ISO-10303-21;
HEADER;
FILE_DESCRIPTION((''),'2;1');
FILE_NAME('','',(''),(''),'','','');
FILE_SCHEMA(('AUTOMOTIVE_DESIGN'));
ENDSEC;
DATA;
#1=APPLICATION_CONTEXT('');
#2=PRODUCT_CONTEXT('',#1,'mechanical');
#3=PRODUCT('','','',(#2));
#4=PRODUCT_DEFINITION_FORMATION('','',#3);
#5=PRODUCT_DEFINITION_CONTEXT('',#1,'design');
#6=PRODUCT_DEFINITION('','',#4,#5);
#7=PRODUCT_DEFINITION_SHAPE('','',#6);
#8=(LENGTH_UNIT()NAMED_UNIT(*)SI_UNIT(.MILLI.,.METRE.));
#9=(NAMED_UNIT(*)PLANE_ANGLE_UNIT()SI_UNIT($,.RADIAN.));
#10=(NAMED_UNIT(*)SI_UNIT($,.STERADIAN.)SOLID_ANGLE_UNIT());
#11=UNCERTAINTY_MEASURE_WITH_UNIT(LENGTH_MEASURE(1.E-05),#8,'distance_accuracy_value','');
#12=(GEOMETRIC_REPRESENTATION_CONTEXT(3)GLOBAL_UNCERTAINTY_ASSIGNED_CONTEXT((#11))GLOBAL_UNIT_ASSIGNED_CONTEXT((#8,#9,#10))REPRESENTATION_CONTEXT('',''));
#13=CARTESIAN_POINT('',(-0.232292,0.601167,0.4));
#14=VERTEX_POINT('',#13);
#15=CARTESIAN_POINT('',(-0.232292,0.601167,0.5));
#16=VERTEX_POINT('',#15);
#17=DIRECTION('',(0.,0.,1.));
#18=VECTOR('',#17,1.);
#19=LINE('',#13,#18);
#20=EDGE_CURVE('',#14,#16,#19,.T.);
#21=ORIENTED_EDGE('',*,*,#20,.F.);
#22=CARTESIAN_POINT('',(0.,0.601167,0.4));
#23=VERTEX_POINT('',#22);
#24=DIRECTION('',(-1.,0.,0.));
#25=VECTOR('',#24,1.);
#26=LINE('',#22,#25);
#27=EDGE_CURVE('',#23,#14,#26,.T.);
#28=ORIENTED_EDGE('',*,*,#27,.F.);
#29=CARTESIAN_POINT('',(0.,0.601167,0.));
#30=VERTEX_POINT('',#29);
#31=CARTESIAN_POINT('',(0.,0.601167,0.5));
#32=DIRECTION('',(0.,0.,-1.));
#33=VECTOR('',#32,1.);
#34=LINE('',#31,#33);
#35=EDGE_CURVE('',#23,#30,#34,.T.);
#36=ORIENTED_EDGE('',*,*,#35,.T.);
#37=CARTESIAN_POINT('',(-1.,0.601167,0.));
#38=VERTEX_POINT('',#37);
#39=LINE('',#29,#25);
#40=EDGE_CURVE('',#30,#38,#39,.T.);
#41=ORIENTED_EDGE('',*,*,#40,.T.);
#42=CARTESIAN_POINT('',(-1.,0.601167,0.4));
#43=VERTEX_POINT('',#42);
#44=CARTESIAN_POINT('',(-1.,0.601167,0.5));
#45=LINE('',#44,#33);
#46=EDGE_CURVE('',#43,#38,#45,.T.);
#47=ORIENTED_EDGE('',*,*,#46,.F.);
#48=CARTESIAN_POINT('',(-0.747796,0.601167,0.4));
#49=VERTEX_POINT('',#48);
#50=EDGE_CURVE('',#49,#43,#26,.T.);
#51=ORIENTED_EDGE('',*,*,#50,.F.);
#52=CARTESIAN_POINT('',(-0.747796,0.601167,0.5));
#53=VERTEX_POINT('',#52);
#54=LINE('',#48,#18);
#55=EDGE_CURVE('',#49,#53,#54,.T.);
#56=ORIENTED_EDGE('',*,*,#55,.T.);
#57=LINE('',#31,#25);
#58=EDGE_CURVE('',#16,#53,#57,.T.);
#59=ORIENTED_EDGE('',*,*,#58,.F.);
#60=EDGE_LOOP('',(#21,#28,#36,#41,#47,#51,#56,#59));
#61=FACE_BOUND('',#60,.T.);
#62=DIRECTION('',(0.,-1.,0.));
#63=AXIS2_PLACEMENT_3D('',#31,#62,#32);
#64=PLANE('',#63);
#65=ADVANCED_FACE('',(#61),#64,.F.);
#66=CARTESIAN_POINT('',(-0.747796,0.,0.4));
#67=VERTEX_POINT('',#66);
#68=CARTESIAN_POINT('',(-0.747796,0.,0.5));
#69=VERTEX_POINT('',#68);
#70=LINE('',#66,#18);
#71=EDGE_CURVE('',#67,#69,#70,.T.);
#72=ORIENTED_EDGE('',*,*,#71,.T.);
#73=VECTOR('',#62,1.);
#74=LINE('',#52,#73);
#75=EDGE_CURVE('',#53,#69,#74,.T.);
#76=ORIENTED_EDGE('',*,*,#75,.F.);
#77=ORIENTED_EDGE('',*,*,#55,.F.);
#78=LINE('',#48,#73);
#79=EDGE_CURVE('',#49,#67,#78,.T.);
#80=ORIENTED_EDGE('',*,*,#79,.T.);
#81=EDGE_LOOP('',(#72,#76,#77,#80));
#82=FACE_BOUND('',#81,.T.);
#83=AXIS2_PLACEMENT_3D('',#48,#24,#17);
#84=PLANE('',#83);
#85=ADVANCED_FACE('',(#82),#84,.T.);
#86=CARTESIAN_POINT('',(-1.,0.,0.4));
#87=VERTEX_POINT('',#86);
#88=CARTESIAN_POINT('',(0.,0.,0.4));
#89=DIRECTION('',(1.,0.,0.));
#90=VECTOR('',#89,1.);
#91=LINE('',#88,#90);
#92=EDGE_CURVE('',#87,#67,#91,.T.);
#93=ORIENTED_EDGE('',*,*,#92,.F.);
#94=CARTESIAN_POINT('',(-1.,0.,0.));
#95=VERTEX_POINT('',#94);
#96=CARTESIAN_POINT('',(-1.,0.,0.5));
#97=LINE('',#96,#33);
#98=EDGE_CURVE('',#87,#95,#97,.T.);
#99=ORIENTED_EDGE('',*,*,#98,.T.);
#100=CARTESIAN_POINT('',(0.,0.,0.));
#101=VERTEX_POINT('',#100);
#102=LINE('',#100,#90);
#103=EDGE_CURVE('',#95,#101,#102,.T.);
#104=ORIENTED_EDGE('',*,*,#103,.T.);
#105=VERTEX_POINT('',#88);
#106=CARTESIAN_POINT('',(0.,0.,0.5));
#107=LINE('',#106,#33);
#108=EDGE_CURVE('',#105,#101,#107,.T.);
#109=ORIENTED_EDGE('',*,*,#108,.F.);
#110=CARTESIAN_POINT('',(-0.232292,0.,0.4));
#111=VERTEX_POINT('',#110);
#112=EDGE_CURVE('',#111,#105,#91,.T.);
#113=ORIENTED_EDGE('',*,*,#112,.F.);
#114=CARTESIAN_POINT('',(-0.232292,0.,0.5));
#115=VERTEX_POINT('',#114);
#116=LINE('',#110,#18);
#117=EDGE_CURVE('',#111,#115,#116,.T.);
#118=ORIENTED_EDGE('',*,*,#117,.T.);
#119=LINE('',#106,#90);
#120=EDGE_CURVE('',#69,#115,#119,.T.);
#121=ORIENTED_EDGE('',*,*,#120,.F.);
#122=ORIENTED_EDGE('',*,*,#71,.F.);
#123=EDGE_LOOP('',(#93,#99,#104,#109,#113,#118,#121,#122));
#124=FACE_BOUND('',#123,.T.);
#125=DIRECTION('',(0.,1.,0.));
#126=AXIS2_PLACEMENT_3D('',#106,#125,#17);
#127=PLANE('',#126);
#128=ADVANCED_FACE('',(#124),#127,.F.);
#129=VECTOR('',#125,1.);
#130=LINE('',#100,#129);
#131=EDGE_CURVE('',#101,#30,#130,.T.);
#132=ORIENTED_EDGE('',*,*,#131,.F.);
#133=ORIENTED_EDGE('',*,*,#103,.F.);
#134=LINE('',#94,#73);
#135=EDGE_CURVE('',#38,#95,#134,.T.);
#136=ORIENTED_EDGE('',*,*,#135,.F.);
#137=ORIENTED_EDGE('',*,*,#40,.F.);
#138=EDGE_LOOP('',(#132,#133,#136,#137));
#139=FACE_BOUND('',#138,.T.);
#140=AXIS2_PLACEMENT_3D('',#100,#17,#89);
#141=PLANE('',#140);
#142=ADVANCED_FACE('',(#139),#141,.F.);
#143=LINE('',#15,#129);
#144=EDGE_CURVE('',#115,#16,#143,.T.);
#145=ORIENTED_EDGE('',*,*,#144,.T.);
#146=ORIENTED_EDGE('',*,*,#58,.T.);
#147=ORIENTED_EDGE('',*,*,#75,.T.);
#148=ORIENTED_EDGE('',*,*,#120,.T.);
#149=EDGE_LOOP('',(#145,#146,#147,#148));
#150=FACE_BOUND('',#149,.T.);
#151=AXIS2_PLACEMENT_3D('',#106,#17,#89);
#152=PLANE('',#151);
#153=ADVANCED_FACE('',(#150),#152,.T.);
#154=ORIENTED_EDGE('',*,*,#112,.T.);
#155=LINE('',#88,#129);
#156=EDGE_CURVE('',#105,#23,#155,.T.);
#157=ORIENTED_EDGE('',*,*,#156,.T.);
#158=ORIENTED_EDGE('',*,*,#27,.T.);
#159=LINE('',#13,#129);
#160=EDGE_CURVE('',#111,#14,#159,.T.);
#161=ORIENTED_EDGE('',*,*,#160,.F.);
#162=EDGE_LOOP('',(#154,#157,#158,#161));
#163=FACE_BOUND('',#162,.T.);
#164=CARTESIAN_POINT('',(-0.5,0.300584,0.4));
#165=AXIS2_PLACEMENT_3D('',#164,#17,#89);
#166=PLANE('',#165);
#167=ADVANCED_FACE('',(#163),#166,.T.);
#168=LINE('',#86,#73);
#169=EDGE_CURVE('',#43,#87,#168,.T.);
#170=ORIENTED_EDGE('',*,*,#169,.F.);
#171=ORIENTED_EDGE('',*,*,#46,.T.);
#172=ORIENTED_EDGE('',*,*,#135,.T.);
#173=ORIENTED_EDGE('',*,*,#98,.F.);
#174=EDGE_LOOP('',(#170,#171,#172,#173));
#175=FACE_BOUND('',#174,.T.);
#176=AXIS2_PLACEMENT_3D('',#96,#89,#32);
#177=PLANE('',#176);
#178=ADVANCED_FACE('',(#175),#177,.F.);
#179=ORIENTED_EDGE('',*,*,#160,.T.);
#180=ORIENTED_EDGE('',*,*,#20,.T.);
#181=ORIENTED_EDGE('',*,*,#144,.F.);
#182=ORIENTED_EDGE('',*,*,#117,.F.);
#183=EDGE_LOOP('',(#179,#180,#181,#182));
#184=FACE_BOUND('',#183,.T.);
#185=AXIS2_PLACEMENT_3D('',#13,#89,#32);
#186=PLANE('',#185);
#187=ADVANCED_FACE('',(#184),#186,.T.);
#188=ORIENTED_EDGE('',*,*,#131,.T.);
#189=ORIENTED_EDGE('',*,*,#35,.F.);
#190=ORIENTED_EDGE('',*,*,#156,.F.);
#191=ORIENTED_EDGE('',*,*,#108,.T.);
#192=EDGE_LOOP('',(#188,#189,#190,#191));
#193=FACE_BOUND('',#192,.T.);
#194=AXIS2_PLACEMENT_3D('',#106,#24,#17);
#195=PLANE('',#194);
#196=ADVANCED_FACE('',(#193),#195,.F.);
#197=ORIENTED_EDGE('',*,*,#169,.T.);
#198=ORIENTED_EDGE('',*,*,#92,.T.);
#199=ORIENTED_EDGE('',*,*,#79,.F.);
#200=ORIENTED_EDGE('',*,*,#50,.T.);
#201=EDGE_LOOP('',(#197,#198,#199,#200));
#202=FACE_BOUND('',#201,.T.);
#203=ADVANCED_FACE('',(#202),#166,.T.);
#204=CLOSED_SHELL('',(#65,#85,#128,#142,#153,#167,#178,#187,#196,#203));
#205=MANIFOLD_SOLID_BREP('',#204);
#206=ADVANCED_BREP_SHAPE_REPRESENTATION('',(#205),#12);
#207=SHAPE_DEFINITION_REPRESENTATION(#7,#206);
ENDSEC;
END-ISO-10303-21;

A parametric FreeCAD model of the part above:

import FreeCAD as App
import Part
import Sketcher
from FreeCAD import Vector

doc = App.newDocument("Part")
body = doc.addObject("PartDesign::Body", "Body")

# Sketch on XY plane
sketch1 = body.newObject("Sketcher::SketchObject", "Sketch")
sketch1.AttachmentSupport = (doc.getObject("XY_Plane"), [""])
sketch1.MapMode = "FlatFace"
sketch1.addGeometry([
    Part.LineSegment(Vector(-1, 0.601167, 0), Vector(-1, 0, 0)),
    Part.LineSegment(Vector(-1, 0, 0), Vector(0, 0, 0)),
    Part.LineSegment(Vector(0, 0, 0), Vector(0, 0.601167, 0)),
    Part.LineSegment(Vector(0, 0.601167, 0), Vector(-1, 0.601167, 0)),
], False)
sketch1.addConstraint([
    Sketcher.Constraint("Coincident", 0, 2, 1, 1),
    Sketcher.Constraint("Coincident", 1, 2, 2, 1),
    Sketcher.Constraint("Coincident", 2, 2, 3, 1),
    Sketcher.Constraint("Coincident", 3, 2, 0, 1),
    Sketcher.Constraint("Vertical", 0),
    Sketcher.Constraint("Horizontal", 1),
    Sketcher.Constraint("Vertical", 2),
    Sketcher.Constraint("Horizontal", 3),
    Sketcher.Constraint("Coincident", 1, 2, -1, 1),
    Sketcher.Constraint("DistanceX", 1, 1, 1, 2, 1.0),
    Sketcher.Constraint("DistanceY", 0, 2, 0, 1, 0.601167),
])
pad1 = body.newObject("PartDesign::Pad", "Pad")
pad1.Profile = sketch1
pad1.Length = 0.5

# Sketch on XY plane
sketch2 = body.newObject("Sketcher::SketchObject", "Sketch001")
sketch2.AttachmentSupport = (doc.getObject("XY_Plane"), [""])
sketch2.MapMode = "FlatFace"
sketch2.AttachmentOffset = App.Placement(Vector(0, 0, 0.5), App.Rotation())
sketch2.addGeometry([
    Part.LineSegment(Vector(-2.127, 1.728, 0), Vector(-2.127, -1.127, 0)),  # 0
    Part.LineSegment(Vector(-2.127, -1.127, 0), Vector(1.127, -1.127, 0)),  # 1
    Part.LineSegment(Vector(1.127, -1.127, 0), Vector(1.127, 1.728, 0)),  # 2
    Part.LineSegment(Vector(1.127, 1.728, 0), Vector(-2.127, 1.728, 0)),  # 3
    Part.LineSegment(Vector(-0.232292, 0, 0), Vector(-0.747796, 0, 0)),  # 4
    Part.LineSegment(Vector(-0.747796, 0, 0), Vector(-0.747796, 0.601167, 0)),  # 5
    Part.LineSegment(Vector(-0.747796, 0.601167, 0), Vector(-0.232292, 0.601167, 0)),  # 6
    Part.LineSegment(Vector(-0.232292, 0.601167, 0), Vector(-0.232292, 0, 0)),  # 7
], False)
sketch2.addConstraint([
    Sketcher.Constraint("Coincident", 0, 2, 1, 1),
    Sketcher.Constraint("Coincident", 1, 2, 2, 1),
    Sketcher.Constraint("Coincident", 2, 2, 3, 1),
    Sketcher.Constraint("Coincident", 3, 2, 0, 1),
    Sketcher.Constraint("Coincident", 4, 2, 5, 1),
    Sketcher.Constraint("Coincident", 5, 2, 6, 1),
    Sketcher.Constraint("Coincident", 6, 2, 7, 1),
    Sketcher.Constraint("Coincident", 7, 2, 4, 1),
    Sketcher.Constraint("Vertical", 0),
    Sketcher.Constraint("Horizontal", 1),
    Sketcher.Constraint("Vertical", 2),
    Sketcher.Constraint("Horizontal", 3),
    Sketcher.Constraint("Horizontal", 4),
    Sketcher.Constraint("Vertical", 5),
    Sketcher.Constraint("Horizontal", 6),
    Sketcher.Constraint("Vertical", 7),
    Sketcher.Constraint("PointOnObject", 4, 2, -1),
    Sketcher.Constraint("DistanceX", 1, 1, 1, 2, 3.254),
    Sketcher.Constraint("DistanceY", 0, 2, 0, 1, 2.855),
    Sketcher.Constraint("DistanceX", 0, 2, -1, 1, 2.127),
    Sketcher.Constraint("DistanceY", 0, 2, -1, 1, 1.127),
    Sketcher.Constraint("DistanceX", 4, 2, 4, 1, 0.515504),
    Sketcher.Constraint("DistanceY", 5, 1, 5, 2, 0.601167),
    Sketcher.Constraint("DistanceX", 6, 2, -1, 1, 0.232292),
])
pocket1 = body.newObject("PartDesign::Pocket", "Pocket")
pocket1.Profile = sketch2
pocket1.Length = 0.1

doc.recompute()
